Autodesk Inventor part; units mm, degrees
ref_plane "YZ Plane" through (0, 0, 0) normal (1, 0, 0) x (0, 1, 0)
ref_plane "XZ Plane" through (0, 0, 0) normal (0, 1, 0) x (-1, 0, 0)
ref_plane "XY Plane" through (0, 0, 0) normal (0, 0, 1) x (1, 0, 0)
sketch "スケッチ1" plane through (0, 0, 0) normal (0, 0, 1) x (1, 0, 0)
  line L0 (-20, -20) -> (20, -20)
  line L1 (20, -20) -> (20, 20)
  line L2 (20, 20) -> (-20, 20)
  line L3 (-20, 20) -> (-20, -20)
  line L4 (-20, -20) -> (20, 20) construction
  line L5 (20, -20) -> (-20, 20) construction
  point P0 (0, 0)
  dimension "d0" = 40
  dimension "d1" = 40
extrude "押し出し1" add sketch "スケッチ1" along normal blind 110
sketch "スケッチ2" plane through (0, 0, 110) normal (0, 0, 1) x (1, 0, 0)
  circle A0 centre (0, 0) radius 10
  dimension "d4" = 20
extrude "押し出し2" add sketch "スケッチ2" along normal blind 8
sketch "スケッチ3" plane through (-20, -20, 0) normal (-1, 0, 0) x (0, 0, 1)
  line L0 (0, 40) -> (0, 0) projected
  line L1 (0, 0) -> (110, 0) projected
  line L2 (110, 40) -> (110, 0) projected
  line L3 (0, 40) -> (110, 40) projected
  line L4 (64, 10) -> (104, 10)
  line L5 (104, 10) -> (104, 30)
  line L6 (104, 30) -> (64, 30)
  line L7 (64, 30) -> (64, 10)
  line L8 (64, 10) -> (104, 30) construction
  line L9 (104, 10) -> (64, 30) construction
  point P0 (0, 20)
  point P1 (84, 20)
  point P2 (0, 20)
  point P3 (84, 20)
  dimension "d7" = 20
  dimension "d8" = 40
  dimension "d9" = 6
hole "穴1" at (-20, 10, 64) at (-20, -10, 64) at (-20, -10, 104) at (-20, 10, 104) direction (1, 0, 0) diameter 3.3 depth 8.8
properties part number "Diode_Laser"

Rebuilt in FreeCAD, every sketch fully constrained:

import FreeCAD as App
import Part
import Sketcher

V = App.Vector

doc = App.newDocument("Part")
params = doc.addObject("Spreadsheet::Sheet", "Params")
for row, (alias, value) in enumerate([
    ("sketch1_width", "40 mm"),
    ("pad1_length", "110 mm"),
    ("sketch2_diameter", "20 mm"),
    ("pad2_length", "8 mm"),
    ("sketch3_diameter", "3.3 mm"),
    ("hole_diameter", "3.3 mm"),
    ("hole_depth", "8.8 mm"),
], start=1):
    params.set(f"A{row}", alias)
    params.set(f"B{row}", "=" + value)
    params.setAlias(f"B{row}", alias)

body = doc.addObject("PartDesign::Body", "Body")

sketch1 = body.newObject("Sketcher::SketchObject", "Sketch")
sketch1.AttachmentSupport = (doc.getObject("XY_Plane"), [""])
sketch1.MapMode = "FlatFace"
sketch1.addGeometry([
    Part.LineSegment(V(-20, 20, 0), V(-20, -20, 0)),
    Part.LineSegment(V(-20, -20, 0), V(20, -20, 0)),
    Part.LineSegment(V(20, -20, 0), V(20, 20, 0)),
    Part.LineSegment(V(20, 20, 0), V(-20, 20, 0)),
], False)
sketch1.addConstraint([
    Sketcher.Constraint("Coincident", 0, 2, 1, 1),
    Sketcher.Constraint("Coincident", 1, 2, 2, 1),
    Sketcher.Constraint("Coincident", 2, 2, 3, 1),
    Sketcher.Constraint("Coincident", 3, 2, 0, 1),
    Sketcher.Constraint("Vertical", 0),
    Sketcher.Constraint("Horizontal", 1),
    Sketcher.Constraint("Vertical", 2),
    Sketcher.Constraint("Horizontal", 3),
    Sketcher.Constraint("Symmetric", 0, 2, 2, 2, -1, 1),
    Sketcher.Constraint("Equal", 3, 0),
    Sketcher.Constraint("DistanceX", 1, 1, 1, 2, 40.0),
])
sketch1.setExpression("Constraints[10]", "Params.sketch1_width")
pad1 = body.newObject("PartDesign::Pad", "Pad")
pad1.Profile = sketch1
pad1.setExpression("Length", "Params.pad1_length")

sketch2 = body.newObject("Sketcher::SketchObject", "Sketch001")
sketch2.AttachmentSupport = (doc.getObject("XY_Plane"), [""])
sketch2.MapMode = "FlatFace"
sketch2.AttachmentOffset = App.Placement(V(0, 0, 110), App.Rotation())
sketch2.addGeometry(Part.Circle(V(0, 0, 0), V(0, 0, 1), 10), False)
sketch2.addConstraint([
    Sketcher.Constraint("Coincident", 0, 3, -1, 1),
    Sketcher.Constraint("Diameter", 0, 20.0),
])
sketch2.setExpression("Constraints[1]", "Params.sketch2_diameter")
pad2 = body.newObject("PartDesign::Pad", "Pad001")
pad2.Profile = sketch2
pad2.setExpression("Length", "Params.pad2_length")

sketch3 = body.newObject("Sketcher::SketchObject", "Sketch002")
sketch3.AttachmentSupport = (doc.getObject("YZ_Plane"), [""])
sketch3.MapMode = "FlatFace"
sketch3.AttachmentOffset = App.Placement(V(0, 0, -20), App.Rotation())
sketch3.addGeometry([
    Part.Circle(V(10, 64, 0), V(0, 0, 1), 1.6),
    Part.Circle(V(-10, 64, 0), V(0, 0, 1), 1.6),
    Part.Circle(V(-10, 104, 0), V(0, 0, 1), 1.6),
    Part.Circle(V(10, 104, 0), V(0, 0, 1), 1.6),
], False)
sketch3.addConstraint([
    Sketcher.Constraint("Equal", 0, 1),
    Sketcher.Constraint("Equal", 1, 2),
    Sketcher.Constraint("Equal", 2, 3),
    Sketcher.Constraint("Symmetric", 0, 3, 1, 3, -2),
    Sketcher.Constraint("Symmetric", 2, 3, 3, 3, -2),
    Sketcher.Constraint("Vertical", 1, 3, 2, 3),
    Sketcher.Constraint("Diameter", 0, 3.3),
    Sketcher.Constraint("DistanceX", -1, 1, 0, 3, 10.0),
    Sketcher.Constraint("DistanceY", -1, 1, 0, 3, 64.0),
    Sketcher.Constraint("DistanceY", -1, 1, 2, 3, 104.0),
])
sketch3.setExpression("Constraints[6]", "Params.sketch3_diameter")
doc.recompute()
hole = body.newObject("PartDesign::Hole", "Hole")
hole.Profile = sketch3
hole.ThreadType = "None"
hole.setExpression("Diameter", "Params.hole_diameter")
hole.DepthType = "Dimension"
hole.setExpression("Depth", "Params.hole_depth")
hole.DrillPoint = "Flat"
hole.Reversed = True

doc.recompute()
